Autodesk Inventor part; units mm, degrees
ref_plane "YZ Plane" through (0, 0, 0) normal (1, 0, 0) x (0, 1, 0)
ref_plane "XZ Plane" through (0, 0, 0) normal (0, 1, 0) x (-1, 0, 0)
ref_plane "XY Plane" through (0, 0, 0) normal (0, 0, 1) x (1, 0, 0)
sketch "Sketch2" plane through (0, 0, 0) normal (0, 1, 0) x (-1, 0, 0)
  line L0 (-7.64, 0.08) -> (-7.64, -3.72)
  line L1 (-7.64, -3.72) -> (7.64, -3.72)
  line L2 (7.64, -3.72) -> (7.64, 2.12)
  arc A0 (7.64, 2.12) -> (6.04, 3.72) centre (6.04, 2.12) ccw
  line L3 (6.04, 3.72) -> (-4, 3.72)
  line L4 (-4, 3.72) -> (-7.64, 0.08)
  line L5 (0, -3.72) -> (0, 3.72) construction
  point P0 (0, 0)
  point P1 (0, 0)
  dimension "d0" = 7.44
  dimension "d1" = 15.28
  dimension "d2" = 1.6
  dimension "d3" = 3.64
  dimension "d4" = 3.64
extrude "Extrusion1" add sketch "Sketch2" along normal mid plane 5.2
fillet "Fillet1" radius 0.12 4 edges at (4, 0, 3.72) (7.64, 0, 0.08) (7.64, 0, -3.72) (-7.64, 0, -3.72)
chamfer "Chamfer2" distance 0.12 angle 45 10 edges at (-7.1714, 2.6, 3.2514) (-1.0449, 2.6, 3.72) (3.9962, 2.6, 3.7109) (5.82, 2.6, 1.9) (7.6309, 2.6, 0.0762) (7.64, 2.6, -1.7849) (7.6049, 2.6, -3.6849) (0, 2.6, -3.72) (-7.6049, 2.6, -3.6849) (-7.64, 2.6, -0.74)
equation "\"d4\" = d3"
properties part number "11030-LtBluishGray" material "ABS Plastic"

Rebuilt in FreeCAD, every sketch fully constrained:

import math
import FreeCAD as App
import Part
import Sketcher
Q = App.Units.Quantity


def edges_at(feature, points):
    """Names of the edges that pass closest to the given points."""
    edges = feature.Shape.Edges
    near = lambda p: min(range(len(edges)), key=lambda i: edges[i].distToShape(Part.Vertex(*p))[0])
    return sorted({f"Edge{near(p) + 1}" for p in points})

doc = App.newDocument("Part")
body = doc.addObject("PartDesign::Body", "Body")

# Sketch on XZ plane
sketch1 = doc.addObject("Sketcher::SketchObject", "Sketch")
body.addObject(sketch1)
sketch1.AttachmentSupport = (doc.XZ_Plane, [""])
sketch1.MapMode = "FlatFace"
sketch1.addGeometry([
    Part.LineSegment(App.Vector(4, 3.72, 0), App.Vector(7.64, 0.08, 0)),  # 0
    Part.LineSegment(App.Vector(7.64, 0.08, 0), App.Vector(7.64, -3.72, 0)),  # 1
    Part.LineSegment(App.Vector(7.64, -3.72, 0), App.Vector(-7.64, -3.72, 0)),  # 2
    Part.LineSegment(App.Vector(-7.64, -3.72, 0), App.Vector(-7.64, 2.12, 0)),  # 3
    Part.ArcOfCircle(Part.Circle(App.Vector(-6.04, 2.12, 0), App.Vector(0, 0, 1), 1.6), math.radians(90), math.radians(180)),  # 4
    Part.LineSegment(App.Vector(-6.04, 3.72, 0), App.Vector(4, 3.72, 0)),  # 5
], False)
sketch1.addConstraint([
    Sketcher.Constraint("Coincident", 0, 2, 1, 1),
    Sketcher.Constraint("Coincident", 1, 2, 2, 1),
    Sketcher.Constraint("Coincident", 2, 2, 3, 1),
    Sketcher.Constraint("Tangent", 3, 2, 4, 2),
    Sketcher.Constraint("Tangent", 4, 1, 5, 1),
    Sketcher.Constraint("Coincident", 5, 2, 0, 1),
    Sketcher.Constraint("Vertical", 1),
    Sketcher.Constraint("Horizontal", 2),
    Sketcher.Constraint("Vertical", 3),
    Sketcher.Constraint("Horizontal", 5),
    Sketcher.Constraint("Radius", 4, Q("1.6 mm")),
    Sketcher.Constraint("DistanceX", 2, 2, 2, 1, Q("15.28 mm")),
    Sketcher.Constraint("Angle", 0, Q("-45 deg")),
    Sketcher.Constraint("DistanceY", 2, 2, 4, 1, Q("7.44 mm")),
    Sketcher.Constraint("DistanceY", 0, 2, 4, 1, Q("3.64 mm")),
    Sketcher.Constraint("DistanceX", -1, 1, 5, 2, Q("4 mm")),
    Sketcher.Constraint("DistanceY", -1, 1, 4, 3, Q("2.12 mm")),
])
pad1 = doc.addObject("PartDesign::Pad", "Pad")
body.addObject(pad1)
pad1.Profile = sketch1
pad1.Length = 5.2
pad1.Midplane = True
doc.recompute()

fillet = doc.addObject("PartDesign::Fillet", "Fillet")
body.addObject(fillet)
fillet.Base = (pad1, edges_at(pad1, [
    (4, 0, 3.72),
    (7.64, 0, 0.08),
    (7.64, 0, -3.72),
    (-7.64, 0, -3.72),
]))
fillet.Radius = 0.12
doc.recompute()

chamfer = doc.addObject("PartDesign::Chamfer", "Chamfer")
body.addObject(chamfer)
chamfer.Base = (fillet, edges_at(fillet, [
    (-7.171, 2.6, 3.251),
    (-1.045, 2.6, 3.72),
    (3.996, 2.6, 3.711),
    (5.82, 2.6, 1.9),
    (7.631, 2.6, 0.076),
    (7.64, 2.6, -1.785),
    (7.605, 2.6, -3.685),
    (0, 2.6, -3.72),
    (-7.605, 2.6, -3.685),
    (-7.64, 2.6, -0.74),
]))
chamfer.Size = 0.12

doc.recompute()
